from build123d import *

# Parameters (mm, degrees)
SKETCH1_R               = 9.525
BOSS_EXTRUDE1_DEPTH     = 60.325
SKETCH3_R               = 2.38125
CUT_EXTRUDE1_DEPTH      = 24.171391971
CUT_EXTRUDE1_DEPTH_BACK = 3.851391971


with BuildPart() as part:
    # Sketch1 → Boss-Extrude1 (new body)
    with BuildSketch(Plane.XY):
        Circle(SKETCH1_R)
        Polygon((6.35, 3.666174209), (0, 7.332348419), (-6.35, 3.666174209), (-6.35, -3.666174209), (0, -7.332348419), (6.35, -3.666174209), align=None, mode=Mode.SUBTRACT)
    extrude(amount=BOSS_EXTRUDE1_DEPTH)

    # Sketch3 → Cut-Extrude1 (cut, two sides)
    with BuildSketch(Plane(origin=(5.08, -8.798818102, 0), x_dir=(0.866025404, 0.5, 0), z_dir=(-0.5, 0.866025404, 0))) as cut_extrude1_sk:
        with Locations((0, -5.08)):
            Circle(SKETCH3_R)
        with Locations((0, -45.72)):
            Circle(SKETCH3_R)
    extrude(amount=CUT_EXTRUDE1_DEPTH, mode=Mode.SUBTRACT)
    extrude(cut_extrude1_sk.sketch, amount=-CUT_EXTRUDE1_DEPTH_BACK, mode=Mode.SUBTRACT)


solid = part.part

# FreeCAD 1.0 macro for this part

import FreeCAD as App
import Part
import Sketcher
from FreeCAD import Vector
Q = App.Units.Quantity

doc = App.newDocument("Part")
body = doc.addObject("PartDesign::Body", "Body")

# Sketch on XY plane
sketch1 = body.newObject("Sketcher::SketchObject", "Sketch")
sketch1.AttachmentSupport = (doc.getObject("XY_Plane"), [""])
sketch1.MapMode = "FlatFace"
sketch1.addGeometry([
    Part.Circle(Vector(0, 0, 0), Vector(0, 0, 1), 9.525),  # 0
    Part.LineSegment(Vector(0, 7.332348, 0), Vector(6.35, 3.666174, 0)),  # 1
    Part.LineSegment(Vector(6.35, 3.666174, 0), Vector(6.35, -3.666174, 0)),  # 2
    Part.LineSegment(Vector(6.35, -3.666174, 0), Vector(0, -7.332348, 0)),  # 3
    Part.LineSegment(Vector(0, -7.332348, 0), Vector(-6.35, -3.666174, 0)),  # 4
    Part.LineSegment(Vector(-6.35, -3.666174, 0), Vector(-6.35, 3.666174, 0)),  # 5
    Part.LineSegment(Vector(-6.35, 3.666174, 0), Vector(0, 7.332348, 0)),  # 6
], False)
sketch1.addConstraint([
    Sketcher.Constraint("Coincident", 1, 2, 2, 1),
    Sketcher.Constraint("Coincident", 2, 2, 3, 1),
    Sketcher.Constraint("Coincident", 3, 2, 4, 1),
    Sketcher.Constraint("Coincident", 4, 2, 5, 1),
    Sketcher.Constraint("Coincident", 5, 2, 6, 1),
    Sketcher.Constraint("Coincident", 6, 2, 1, 1),
    Sketcher.Constraint("Vertical", 2),
    Sketcher.Constraint("Vertical", 5),
    Sketcher.Constraint("Coincident", 0, 3, -1, 1),
    Sketcher.Constraint("Symmetric", 1, 2, 4, 2, -1, 1),
    Sketcher.Constraint("Symmetric", 3, 2, 6, 2, -1, 1),
    Sketcher.Constraint("PointOnObject", 3, 2, -2),
    Sketcher.Constraint("Parallel", 3, 6),
    Sketcher.Constraint("Horizontal", 2, 2, 4, 2),
    Sketcher.Constraint("Diameter", 0, Q("0.75 in")),
    Sketcher.Constraint("Angle", 1, Q("-30 deg")),
    Sketcher.Constraint("DistanceX", 4, 2, 2, 2, Q("0.5 in")),
    Sketcher.Constraint("DistanceY", 2, 2, 2, 1, 7.332348),
])
pad1 = body.newObject("PartDesign::Pad", "Pad")
pad1.Profile = sketch1
pad1.Length = Q("2.375 in")

# Sketch on an angled plane
sketch2 = body.newObject("Sketcher::SketchObject", "Sketch001")
sketch2.Placement = App.Placement(Vector(5.08, -8.798818, 0), App.Rotation(Vector(0.866025404, 0.5, 0), Vector(0, 0, -1), Vector(-0.5, 0.866025404, 0), "ZXY"))
sketch2.addGeometry([
    Part.Circle(Vector(0, -5.08, 0), Vector(0, 0, 1), 2.38125),
    Part.Circle(Vector(0, -45.72, 0), Vector(0, 0, 1), 2.38125),
], False)
sketch2.addConstraint([
    Sketcher.Constraint("Equal", 0, 1),
    Sketcher.Constraint("PointOnObject", 0, 3, -2),
    Sketcher.Constraint("PointOnObject", 1, 3, -2),
    Sketcher.Constraint("Diameter", 0, Q("0.1875 in")),
    Sketcher.Constraint("DistanceY", 0, 3, -1, 1, Q("0.2 in")),
    Sketcher.Constraint("DistanceY", 1, 3, -1, 1, Q("1.8 in")),
])
pocket1 = body.newObject("PartDesign::Pocket", "Pocket")
pocket1.Profile = sketch2
pocket1.Type = "ThroughAll"
pocket1.Midplane = True

doc.recompute()
